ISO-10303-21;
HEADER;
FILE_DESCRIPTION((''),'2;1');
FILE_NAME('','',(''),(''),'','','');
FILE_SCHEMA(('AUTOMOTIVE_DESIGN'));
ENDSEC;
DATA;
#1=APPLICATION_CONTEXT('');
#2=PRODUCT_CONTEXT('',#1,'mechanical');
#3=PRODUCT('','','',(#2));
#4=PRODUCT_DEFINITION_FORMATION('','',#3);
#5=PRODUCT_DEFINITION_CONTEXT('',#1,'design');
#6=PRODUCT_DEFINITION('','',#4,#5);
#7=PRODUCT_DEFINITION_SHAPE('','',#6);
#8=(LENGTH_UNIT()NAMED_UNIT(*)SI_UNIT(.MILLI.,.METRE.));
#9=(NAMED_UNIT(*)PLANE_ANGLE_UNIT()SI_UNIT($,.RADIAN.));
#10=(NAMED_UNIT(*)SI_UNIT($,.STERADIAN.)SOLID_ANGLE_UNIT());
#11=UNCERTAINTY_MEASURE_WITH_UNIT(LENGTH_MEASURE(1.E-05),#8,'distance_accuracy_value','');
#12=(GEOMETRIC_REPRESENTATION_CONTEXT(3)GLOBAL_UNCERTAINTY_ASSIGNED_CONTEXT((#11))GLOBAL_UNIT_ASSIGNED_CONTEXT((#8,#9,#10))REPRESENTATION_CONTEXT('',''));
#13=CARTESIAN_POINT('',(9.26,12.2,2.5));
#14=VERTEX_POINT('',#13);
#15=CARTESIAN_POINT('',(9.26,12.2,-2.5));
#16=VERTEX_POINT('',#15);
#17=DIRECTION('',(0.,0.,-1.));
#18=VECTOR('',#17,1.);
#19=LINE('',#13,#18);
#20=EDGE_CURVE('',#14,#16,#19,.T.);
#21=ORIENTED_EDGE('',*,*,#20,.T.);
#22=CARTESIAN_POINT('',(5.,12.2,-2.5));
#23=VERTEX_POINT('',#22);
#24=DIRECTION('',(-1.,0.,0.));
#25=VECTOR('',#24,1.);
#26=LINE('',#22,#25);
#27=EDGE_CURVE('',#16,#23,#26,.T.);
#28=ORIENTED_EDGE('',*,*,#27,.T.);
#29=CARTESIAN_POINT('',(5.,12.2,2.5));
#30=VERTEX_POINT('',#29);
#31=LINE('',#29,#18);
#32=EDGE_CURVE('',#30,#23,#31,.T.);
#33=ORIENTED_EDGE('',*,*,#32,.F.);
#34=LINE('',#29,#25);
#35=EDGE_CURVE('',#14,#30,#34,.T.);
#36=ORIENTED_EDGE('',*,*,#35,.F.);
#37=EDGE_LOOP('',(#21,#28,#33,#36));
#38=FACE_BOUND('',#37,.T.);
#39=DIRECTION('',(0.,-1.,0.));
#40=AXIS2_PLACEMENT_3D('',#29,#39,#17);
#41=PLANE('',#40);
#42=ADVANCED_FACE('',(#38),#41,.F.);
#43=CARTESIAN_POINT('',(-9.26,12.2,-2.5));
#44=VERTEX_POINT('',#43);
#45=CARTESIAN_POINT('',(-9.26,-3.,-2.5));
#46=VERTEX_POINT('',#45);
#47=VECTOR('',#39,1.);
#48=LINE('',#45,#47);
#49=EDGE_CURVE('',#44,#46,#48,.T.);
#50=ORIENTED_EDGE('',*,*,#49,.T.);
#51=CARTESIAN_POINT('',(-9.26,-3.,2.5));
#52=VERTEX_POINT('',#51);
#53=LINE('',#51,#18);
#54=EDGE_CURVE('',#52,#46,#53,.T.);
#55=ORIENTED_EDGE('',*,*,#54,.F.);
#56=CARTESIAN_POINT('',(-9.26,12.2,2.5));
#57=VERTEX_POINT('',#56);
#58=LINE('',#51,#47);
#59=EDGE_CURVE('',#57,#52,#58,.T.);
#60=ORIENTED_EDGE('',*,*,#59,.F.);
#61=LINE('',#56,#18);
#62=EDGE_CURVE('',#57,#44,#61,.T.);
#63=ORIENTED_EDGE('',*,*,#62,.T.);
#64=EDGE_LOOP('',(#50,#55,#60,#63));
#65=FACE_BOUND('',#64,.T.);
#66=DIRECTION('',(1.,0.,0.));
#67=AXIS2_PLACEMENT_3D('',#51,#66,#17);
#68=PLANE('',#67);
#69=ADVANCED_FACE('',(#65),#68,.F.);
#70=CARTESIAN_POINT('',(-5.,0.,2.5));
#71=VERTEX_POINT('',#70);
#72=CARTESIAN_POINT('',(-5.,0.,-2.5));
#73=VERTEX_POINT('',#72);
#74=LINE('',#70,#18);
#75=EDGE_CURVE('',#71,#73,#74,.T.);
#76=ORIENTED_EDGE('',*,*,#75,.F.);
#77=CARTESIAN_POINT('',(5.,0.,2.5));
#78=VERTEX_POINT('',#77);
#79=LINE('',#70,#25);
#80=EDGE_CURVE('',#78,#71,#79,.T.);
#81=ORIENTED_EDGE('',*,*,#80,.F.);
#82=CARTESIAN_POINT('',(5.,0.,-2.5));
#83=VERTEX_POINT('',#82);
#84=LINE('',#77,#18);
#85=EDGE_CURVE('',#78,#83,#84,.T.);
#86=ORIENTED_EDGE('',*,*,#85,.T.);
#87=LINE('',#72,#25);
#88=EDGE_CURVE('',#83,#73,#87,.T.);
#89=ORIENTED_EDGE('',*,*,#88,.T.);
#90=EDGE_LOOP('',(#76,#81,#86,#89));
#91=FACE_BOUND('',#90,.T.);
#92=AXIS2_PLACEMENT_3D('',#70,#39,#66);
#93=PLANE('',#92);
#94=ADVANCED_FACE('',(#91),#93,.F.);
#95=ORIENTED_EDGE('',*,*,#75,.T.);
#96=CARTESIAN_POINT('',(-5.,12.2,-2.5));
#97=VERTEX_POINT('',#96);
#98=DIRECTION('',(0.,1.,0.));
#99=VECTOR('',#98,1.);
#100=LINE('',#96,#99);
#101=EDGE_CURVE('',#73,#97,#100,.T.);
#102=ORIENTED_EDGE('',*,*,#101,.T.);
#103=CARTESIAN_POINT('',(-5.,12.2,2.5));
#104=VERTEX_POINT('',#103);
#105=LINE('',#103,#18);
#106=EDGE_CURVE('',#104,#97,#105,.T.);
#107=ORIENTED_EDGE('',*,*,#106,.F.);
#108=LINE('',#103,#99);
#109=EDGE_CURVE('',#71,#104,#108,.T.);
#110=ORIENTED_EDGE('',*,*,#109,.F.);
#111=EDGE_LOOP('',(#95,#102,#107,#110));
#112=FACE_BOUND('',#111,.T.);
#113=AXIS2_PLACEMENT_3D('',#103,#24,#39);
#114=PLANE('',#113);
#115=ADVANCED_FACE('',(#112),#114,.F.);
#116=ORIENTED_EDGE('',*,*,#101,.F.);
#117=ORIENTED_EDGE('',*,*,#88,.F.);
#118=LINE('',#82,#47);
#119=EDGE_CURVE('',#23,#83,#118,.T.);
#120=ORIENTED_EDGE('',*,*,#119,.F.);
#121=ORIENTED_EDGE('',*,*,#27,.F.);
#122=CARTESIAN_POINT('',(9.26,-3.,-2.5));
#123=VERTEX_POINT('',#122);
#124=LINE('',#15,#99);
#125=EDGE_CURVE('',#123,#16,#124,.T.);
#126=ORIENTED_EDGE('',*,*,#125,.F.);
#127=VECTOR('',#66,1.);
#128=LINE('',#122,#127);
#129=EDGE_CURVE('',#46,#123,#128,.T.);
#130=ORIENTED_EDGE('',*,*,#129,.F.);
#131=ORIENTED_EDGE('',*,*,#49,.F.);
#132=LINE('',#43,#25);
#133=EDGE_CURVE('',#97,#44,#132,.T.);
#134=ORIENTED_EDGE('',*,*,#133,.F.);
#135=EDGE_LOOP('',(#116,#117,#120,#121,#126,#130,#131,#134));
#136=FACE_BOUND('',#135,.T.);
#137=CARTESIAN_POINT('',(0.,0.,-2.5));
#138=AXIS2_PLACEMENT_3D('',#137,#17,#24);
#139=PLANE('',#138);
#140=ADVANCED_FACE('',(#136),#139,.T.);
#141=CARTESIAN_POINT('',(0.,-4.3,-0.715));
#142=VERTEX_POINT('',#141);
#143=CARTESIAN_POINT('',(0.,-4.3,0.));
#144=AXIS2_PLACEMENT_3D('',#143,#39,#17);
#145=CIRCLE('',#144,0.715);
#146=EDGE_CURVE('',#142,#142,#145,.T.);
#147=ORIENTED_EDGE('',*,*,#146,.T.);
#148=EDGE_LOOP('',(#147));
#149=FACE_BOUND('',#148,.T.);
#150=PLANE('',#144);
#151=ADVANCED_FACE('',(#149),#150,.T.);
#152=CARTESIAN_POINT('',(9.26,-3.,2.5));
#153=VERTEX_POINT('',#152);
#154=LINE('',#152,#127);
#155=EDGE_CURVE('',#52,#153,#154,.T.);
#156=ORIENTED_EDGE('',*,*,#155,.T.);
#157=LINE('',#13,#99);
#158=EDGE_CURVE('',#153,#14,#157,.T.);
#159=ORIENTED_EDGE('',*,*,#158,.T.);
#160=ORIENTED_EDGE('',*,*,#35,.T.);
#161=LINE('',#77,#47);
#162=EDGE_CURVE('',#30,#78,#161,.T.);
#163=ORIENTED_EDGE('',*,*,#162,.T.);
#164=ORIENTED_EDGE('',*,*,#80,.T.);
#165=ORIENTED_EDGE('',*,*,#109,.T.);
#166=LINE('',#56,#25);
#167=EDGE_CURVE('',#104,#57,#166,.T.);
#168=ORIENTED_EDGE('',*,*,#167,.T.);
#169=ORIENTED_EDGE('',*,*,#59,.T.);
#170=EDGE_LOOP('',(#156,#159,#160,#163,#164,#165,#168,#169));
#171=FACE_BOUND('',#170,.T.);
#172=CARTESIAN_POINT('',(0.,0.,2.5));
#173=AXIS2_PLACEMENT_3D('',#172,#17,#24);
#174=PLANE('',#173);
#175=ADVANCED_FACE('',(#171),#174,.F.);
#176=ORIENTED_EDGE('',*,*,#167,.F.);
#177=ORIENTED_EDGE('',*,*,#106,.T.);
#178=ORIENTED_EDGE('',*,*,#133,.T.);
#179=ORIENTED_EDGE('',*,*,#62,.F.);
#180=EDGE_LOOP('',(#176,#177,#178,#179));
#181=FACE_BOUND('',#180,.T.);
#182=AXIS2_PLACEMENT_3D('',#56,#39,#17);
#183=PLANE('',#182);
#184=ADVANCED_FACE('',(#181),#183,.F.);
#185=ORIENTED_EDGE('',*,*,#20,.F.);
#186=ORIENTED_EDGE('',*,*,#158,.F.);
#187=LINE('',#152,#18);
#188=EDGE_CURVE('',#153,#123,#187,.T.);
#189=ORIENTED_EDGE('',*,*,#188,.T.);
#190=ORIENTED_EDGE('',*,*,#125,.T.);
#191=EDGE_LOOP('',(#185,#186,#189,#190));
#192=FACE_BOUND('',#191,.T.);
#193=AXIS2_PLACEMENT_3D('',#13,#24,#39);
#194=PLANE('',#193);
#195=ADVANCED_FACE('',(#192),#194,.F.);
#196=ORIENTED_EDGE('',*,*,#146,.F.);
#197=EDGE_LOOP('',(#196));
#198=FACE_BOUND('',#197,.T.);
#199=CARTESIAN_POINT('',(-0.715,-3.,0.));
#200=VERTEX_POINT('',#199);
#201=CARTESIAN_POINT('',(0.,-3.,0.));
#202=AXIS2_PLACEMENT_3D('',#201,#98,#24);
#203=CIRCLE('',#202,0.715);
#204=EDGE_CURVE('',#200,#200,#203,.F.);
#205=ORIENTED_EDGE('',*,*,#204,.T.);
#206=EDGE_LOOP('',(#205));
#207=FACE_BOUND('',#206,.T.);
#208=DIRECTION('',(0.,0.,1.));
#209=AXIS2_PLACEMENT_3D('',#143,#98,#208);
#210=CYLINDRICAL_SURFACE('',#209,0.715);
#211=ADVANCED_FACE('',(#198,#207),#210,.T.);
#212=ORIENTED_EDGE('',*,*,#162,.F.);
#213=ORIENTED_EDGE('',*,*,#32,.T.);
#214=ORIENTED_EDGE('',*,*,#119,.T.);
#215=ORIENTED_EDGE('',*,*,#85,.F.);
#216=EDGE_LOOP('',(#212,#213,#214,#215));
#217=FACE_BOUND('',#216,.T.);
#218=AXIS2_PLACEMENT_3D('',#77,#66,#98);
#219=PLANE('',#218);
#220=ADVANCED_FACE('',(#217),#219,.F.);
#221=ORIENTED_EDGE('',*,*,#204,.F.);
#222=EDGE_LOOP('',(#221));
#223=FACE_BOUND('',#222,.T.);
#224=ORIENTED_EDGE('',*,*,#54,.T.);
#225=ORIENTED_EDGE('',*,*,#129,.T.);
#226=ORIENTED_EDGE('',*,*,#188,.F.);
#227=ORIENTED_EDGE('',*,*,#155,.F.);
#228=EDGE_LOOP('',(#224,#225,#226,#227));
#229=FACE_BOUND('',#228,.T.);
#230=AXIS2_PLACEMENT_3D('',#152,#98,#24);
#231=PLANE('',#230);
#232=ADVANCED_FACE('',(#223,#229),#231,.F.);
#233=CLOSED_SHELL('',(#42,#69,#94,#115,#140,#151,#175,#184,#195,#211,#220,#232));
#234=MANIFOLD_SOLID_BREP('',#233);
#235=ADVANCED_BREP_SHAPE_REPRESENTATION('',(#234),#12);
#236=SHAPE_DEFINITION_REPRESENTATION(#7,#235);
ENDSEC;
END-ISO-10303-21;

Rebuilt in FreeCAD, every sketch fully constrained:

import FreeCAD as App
import Part
import Sketcher


def add_polygon(sketch, points):
    """Adds a closed chain of lines whose ends are joined by coincident constraints."""
    first, n = sketch.GeometryCount, len(points)
    for a, b in zip(points, points[1:] + points[:1]):
        sketch.addGeometry(Part.LineSegment(App.Vector(*a, 0), App.Vector(*b, 0)), False)
    for i in range(n):
        sketch.addConstraint(Sketcher.Constraint("Coincident", first + i, 2, first + (i + 1) % n, 1))

doc = App.newDocument("Part")
body = doc.addObject("PartDesign::Body", "Body")

# Sketch on XY plane
sketch1 = body.newObject("Sketcher::SketchObject", "Sketch")
sketch1.AttachmentSupport = (doc.getObject("XY_Plane"), [""])
sketch1.MapMode = "FlatFace"
add_polygon(sketch1, [(-9.3, 12.2), (-9.3, -3), (9.3, -3), (9.3, 12.2), (5, 12.2), (5, 0), (-5, 0), (-5, 12.2)])  # lines 0-7
sketch1.addConstraint([
    Sketcher.Constraint("Vertical", 0),
    Sketcher.Constraint("Horizontal", 1),
    Sketcher.Constraint("Vertical", 2),
    Sketcher.Constraint("Horizontal", 3),
    Sketcher.Constraint("Vertical", 4),
    Sketcher.Constraint("Horizontal", 5),
    Sketcher.Constraint("Vertical", 6),
    Sketcher.Constraint("Horizontal", 7),
    Sketcher.Constraint("Symmetric", 4, 2, 5, 2, -1, 1),
    Sketcher.Constraint("Symmetric", 2, 2, 7, 2, -2),
    Sketcher.Constraint("DistanceX", 5, 2, 5, 1, 10.0),
    Sketcher.Constraint("DistanceY", 0, 2, 0, 1, 15.2),
    Sketcher.Constraint("DistanceY", 4, 2, 4, 1, 12.2),
    Sketcher.Constraint("DistanceX", 1, 1, 1, 2, 18.52),
])
pad1 = body.newObject("PartDesign::Pad", "Pad")
pad1.Profile = sketch1
pad1.Length = 5
pad1.Midplane = True

# Sketch on XZ plane
sketch2 = body.newObject("Sketcher::SketchObject", "Sketch001")
sketch2.AttachmentSupport = (doc.getObject("XZ_Plane"), [""])
sketch2.MapMode = "FlatFace"
sketch2.AttachmentOffset = App.Placement(App.Vector(0, 0, 3), App.Rotation())
sketch2.addGeometry(Part.Circle(App.Vector(0, 0, 0), App.Vector(0, 0, 1), 0.7), False)
sketch2.addConstraint([
    Sketcher.Constraint("Coincident", 0, 3, -1, 1),
    Sketcher.Constraint("Diameter", 0, 1.43),
])
pad2 = body.newObject("PartDesign::Pad", "Pad001")
pad2.Profile = sketch2
pad2.Length = 1.3

doc.recompute()
